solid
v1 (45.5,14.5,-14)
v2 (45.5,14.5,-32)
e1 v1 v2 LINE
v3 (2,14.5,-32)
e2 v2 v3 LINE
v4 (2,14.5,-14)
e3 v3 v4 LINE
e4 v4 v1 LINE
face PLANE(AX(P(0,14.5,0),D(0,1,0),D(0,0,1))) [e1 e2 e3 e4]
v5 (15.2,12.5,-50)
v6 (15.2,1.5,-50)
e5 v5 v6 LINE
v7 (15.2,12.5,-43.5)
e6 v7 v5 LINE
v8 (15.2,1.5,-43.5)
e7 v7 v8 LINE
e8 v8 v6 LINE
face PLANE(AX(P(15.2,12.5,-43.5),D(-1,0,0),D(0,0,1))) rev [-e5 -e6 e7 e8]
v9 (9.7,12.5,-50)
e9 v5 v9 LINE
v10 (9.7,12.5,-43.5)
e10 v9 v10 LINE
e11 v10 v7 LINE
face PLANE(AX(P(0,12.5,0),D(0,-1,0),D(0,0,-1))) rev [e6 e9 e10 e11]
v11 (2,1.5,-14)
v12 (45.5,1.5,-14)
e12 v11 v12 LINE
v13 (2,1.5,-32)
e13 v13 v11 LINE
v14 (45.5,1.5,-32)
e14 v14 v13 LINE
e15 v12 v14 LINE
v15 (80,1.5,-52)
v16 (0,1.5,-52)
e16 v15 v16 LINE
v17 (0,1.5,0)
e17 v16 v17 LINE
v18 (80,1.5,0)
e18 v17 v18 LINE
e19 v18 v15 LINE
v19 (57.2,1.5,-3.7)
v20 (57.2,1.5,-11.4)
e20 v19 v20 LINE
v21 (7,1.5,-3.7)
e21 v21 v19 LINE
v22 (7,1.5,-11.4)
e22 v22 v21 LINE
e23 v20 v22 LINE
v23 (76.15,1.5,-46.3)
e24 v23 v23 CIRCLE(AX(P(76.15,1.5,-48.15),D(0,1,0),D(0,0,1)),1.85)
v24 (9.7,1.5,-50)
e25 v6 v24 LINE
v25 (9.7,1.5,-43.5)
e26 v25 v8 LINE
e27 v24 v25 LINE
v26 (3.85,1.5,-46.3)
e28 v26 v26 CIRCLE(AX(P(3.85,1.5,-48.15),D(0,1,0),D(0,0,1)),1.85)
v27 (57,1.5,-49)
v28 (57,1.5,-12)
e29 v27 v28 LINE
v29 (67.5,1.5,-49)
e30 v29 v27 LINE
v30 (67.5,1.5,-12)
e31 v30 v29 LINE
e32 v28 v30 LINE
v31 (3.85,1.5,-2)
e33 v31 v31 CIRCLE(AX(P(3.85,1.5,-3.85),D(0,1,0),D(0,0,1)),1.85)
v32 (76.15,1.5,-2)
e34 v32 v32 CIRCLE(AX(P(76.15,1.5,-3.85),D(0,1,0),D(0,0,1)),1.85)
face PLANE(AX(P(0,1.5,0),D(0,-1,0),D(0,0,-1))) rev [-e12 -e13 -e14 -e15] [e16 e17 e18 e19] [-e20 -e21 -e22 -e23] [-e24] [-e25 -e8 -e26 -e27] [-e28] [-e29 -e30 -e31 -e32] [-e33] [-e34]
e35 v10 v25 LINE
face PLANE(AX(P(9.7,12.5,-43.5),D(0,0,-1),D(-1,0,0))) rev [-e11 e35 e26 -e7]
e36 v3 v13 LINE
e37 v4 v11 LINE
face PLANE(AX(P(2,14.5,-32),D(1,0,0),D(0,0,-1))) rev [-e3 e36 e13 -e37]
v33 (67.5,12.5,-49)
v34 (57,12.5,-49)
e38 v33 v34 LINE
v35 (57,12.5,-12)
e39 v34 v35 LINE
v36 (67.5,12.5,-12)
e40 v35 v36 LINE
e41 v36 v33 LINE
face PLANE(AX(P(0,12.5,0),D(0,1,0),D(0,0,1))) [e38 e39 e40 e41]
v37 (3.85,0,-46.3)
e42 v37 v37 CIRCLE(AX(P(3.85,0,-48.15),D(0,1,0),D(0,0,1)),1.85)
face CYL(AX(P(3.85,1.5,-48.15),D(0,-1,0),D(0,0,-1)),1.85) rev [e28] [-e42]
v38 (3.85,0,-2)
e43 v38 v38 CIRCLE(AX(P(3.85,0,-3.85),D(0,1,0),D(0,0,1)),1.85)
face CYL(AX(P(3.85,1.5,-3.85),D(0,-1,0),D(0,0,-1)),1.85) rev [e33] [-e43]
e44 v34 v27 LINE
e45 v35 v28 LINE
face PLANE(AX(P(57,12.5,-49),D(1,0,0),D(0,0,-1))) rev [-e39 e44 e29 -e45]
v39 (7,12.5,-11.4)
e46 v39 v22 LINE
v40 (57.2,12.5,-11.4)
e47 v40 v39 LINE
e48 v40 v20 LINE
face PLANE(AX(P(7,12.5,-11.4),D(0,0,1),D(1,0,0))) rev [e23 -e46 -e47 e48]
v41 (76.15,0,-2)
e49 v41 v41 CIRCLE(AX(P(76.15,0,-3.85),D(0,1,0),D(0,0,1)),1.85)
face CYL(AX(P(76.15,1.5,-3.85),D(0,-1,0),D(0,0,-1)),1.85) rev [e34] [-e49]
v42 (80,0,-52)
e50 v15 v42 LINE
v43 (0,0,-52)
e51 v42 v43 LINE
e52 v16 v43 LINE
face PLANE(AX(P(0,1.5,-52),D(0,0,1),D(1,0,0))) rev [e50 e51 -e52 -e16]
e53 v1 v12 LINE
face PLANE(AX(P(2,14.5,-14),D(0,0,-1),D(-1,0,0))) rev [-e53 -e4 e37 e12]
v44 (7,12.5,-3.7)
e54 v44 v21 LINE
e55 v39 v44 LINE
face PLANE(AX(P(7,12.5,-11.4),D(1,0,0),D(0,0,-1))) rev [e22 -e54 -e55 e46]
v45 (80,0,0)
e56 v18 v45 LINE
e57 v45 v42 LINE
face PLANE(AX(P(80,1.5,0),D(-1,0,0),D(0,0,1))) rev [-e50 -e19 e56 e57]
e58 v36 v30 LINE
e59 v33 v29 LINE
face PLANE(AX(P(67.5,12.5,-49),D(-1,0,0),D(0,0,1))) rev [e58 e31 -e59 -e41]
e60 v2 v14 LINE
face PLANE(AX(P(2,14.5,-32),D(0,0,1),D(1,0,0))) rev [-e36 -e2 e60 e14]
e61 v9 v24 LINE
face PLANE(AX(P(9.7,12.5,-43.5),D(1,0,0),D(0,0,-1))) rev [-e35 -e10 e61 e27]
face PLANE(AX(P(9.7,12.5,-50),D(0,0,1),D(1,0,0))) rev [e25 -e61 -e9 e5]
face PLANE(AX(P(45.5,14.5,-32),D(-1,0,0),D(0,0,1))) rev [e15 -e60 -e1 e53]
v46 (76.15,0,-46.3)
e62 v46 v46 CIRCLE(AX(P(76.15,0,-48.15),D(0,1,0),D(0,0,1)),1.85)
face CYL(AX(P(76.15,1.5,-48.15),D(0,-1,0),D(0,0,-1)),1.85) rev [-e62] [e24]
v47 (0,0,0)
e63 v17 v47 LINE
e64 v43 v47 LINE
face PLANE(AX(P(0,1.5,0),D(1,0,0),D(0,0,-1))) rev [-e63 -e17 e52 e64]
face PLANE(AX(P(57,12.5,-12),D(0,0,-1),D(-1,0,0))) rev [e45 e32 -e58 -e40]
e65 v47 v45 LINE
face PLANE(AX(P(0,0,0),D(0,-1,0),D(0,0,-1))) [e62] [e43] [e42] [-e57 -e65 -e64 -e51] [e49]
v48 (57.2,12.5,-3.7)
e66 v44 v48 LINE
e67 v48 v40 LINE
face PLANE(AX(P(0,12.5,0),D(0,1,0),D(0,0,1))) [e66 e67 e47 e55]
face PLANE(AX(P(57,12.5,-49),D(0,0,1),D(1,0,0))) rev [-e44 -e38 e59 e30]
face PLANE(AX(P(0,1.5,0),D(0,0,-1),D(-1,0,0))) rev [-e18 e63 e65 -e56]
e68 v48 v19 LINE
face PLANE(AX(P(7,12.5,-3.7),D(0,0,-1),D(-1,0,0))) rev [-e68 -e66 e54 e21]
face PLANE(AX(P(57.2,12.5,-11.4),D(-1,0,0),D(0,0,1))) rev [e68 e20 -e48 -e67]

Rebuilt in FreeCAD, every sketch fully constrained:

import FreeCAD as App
import Part
import Sketcher

doc = App.newDocument("Part")
params = doc.addObject("Spreadsheet::Sheet", "Params")
for row, (alias, value) in enumerate([
    ("sketch1_diameter", "3.7 mm"),
    ("sketch1_width", "80 mm"),
    ("sketch1_height", "52 mm"),
    ("pad1_length", "1.5 mm"),
    ("sketch2_height", "18 mm"),
    ("sketch2_width", "43.5 mm"),
    ("pad2_length", "13 mm"),
    ("sketch3_height", "37 mm"),
    ("sketch3_width", "10.5 mm"),
    ("sketch3_width2", "50.2 mm"),
    ("sketch3_width3", "5.5 mm"),
    ("sketch3_height2", "7.7 mm"),
    ("pad3_length", "11 mm"),
], start=1):
    params.set(f"A{row}", alias)
    params.set(f"B{row}", "=" + value)
    params.setAlias(f"B{row}", alias)

body = doc.addObject("PartDesign::Body", "Body")

# Sketch on XZ plane
sketch1 = doc.addObject("Sketcher::SketchObject", "Sketch")
body.addObject(sketch1)
sketch1.AttachmentSupport = (doc.XZ_Plane, [""])
sketch1.MapMode = "FlatFace"
sketch1.addGeometry([
    Part.LineSegment(App.Vector(0, -52, 0), App.Vector(0, 0, 0)),  # 0
    Part.LineSegment(App.Vector(0, 0, 0), App.Vector(80, 0, 0)),  # 1
    Part.LineSegment(App.Vector(80, 0, 0), App.Vector(80, -52, 0)),  # 2
    Part.LineSegment(App.Vector(80, -52, 0), App.Vector(0, -52, 0)),  # 3
    Part.Circle(App.Vector(3.9, -3.9, 0), App.Vector(0, 0, 1), 1.9),  # 4
    Part.Circle(App.Vector(76.2, -3.9, 0), App.Vector(0, 0, 1), 1.9),  # 5
    Part.Circle(App.Vector(3.9, -48.1, 0), App.Vector(0, 0, 1), 1.9),  # 6
    Part.Circle(App.Vector(76.2, -48.1, 0), App.Vector(0, 0, 1), 1.9),  # 7
], False)
sketch1.addConstraint([
    Sketcher.Constraint("Coincident", 0, 2, 1, 1),
    Sketcher.Constraint("Coincident", 1, 2, 2, 1),
    Sketcher.Constraint("Coincident", 2, 2, 3, 1),
    Sketcher.Constraint("Coincident", 3, 2, 0, 1),
    Sketcher.Constraint("Vertical", 0),
    Sketcher.Constraint("Horizontal", 1),
    Sketcher.Constraint("Vertical", 2),
    Sketcher.Constraint("Horizontal", 3),
    Sketcher.Constraint("Coincident", 0, 2, -1, 1),
    Sketcher.Constraint("Equal", 4, 5),
    Sketcher.Constraint("Equal", 5, 6),
    Sketcher.Constraint("Equal", 6, 7),
    Sketcher.Constraint("Horizontal", 4, 3, 5, 3),
    Sketcher.Constraint("Horizontal", 6, 3, 7, 3),
    Sketcher.Constraint("Vertical", 4, 3, 6, 3),
    Sketcher.Constraint("Vertical", 5, 3, 7, 3),
    Sketcher.Constraint("Diameter", 4, 3.7),
    Sketcher.Constraint("DistanceX", 1, 1, 1, 2, 80.0),
    Sketcher.Constraint("DistanceY", 0, 1, 0, 2, 52.0),
    Sketcher.Constraint("DistanceX", 4, 3, 5, 3, 72.3),
    Sketcher.Constraint("DistanceY", 6, 3, 4, 3, 44.3),
    Sketcher.Constraint("DistanceX", -1, 1, 4, 3, 3.85),
    Sketcher.Constraint("DistanceY", 4, 3, -1, 1, 3.85),
])
sketch1.setExpression("Constraints[16]", "Params.sketch1_diameter")
sketch1.setExpression("Constraints[17]", "Params.sketch1_width")
sketch1.setExpression("Constraints[18]", "Params.sketch1_height")
pad1 = doc.addObject("PartDesign::Pad", "Pad")
body.addObject(pad1)
pad1.Profile = sketch1
pad1.setExpression("Length", "Params.pad1_length")
pad1.Reversed = True

# Sketch on XZ plane
sketch2 = doc.addObject("Sketcher::SketchObject", "Sketch001")
body.addObject(sketch2)
sketch2.AttachmentSupport = (doc.XZ_Plane, [""])
sketch2.MapMode = "FlatFace"
sketch2.AttachmentOffset = App.Placement(App.Vector(0, 0, -1.5), App.Rotation())
sketch2.addGeometry([
    Part.LineSegment(App.Vector(2, -32, 0), App.Vector(2, -14, 0)),
    Part.LineSegment(App.Vector(2, -14, 0), App.Vector(46, -14, 0)),
    Part.LineSegment(App.Vector(46, -14, 0), App.Vector(46, -32, 0)),
    Part.LineSegment(App.Vector(46, -32, 0), App.Vector(2, -32, 0)),
], False)
sketch2.addConstraint([
    Sketcher.Constraint("Coincident", 0, 2, 1, 1),
    Sketcher.Constraint("Coincident", 1, 2, 2, 1),
    Sketcher.Constraint("Coincident", 2, 2, 3, 1),
    Sketcher.Constraint("Coincident", 3, 2, 0, 1),
    Sketcher.Constraint("Vertical", 0),
    Sketcher.Constraint("Horizontal", 1),
    Sketcher.Constraint("Vertical", 2),
    Sketcher.Constraint("Horizontal", 3),
    Sketcher.Constraint("DistanceY", 0, 1, 0, 2, 18.0),
    Sketcher.Constraint("DistanceX", 1, 1, 1, 2, 43.5),
    Sketcher.Constraint("DistanceX", -1, 1, 0, 2, 2.0),
    Sketcher.Constraint("DistanceY", 0, 2, -1, 1, 14.0),
])
sketch2.setExpression("Constraints[8]", "Params.sketch2_height")
sketch2.setExpression("Constraints[9]", "Params.sketch2_width")
pad2 = doc.addObject("PartDesign::Pad", "Pad001")
body.addObject(pad2)
pad2.Profile = sketch2
pad2.setExpression("Length", "Params.pad2_length")
pad2.Reversed = True

# Sketch on XZ plane
sketch3 = doc.addObject("Sketcher::SketchObject", "Sketch002")
body.addObject(sketch3)
sketch3.AttachmentSupport = (doc.XZ_Plane, [""])
sketch3.MapMode = "FlatFace"
sketch3.AttachmentOffset = App.Placement(App.Vector(0, 0, -1.5), App.Rotation())
sketch3.addGeometry([
    Part.LineSegment(App.Vector(57, -49, 0), App.Vector(57, -12, 0)),  # 0
    Part.LineSegment(App.Vector(57, -12, 0), App.Vector(68, -12, 0)),  # 1
    Part.LineSegment(App.Vector(68, -12, 0), App.Vector(68, -49, 0)),  # 2
    Part.LineSegment(App.Vector(68, -49, 0), App.Vector(57, -49, 0)),  # 3
    Part.LineSegment(App.Vector(7, -11, 0), App.Vector(7, -4, 0)),  # 4
    Part.LineSegment(App.Vector(7, -4, 0), App.Vector(57, -4, 0)),  # 5
    Part.LineSegment(App.Vector(57, -4, 0), App.Vector(57, -11, 0)),  # 6
    Part.LineSegment(App.Vector(57, -11, 0), App.Vector(7, -11, 0)),  # 7
    Part.LineSegment(App.Vector(10, -50, 0), App.Vector(10, -44, 0)),  # 8
    Part.LineSegment(App.Vector(10, -44, 0), App.Vector(15, -44, 0)),  # 9
    Part.LineSegment(App.Vector(15, -44, 0), App.Vector(15, -50, 0)),  # 10
    Part.LineSegment(App.Vector(15, -50, 0), App.Vector(10, -50, 0)),  # 11
], False)
sketch3.addConstraint([
    Sketcher.Constraint("Coincident", 0, 2, 1, 1),
    Sketcher.Constraint("Coincident", 1, 2, 2, 1),
    Sketcher.Constraint("Coincident", 2, 2, 3, 1),
    Sketcher.Constraint("Coincident", 3, 2, 0, 1),
    Sketcher.Constraint("Coincident", 4, 2, 5, 1),
    Sketcher.Constraint("Coincident", 5, 2, 6, 1),
    Sketcher.Constraint("Coincident", 6, 2, 7, 1),
    Sketcher.Constraint("Coincident", 7, 2, 4, 1),
    Sketcher.Constraint("Coincident", 8, 2, 9, 1),
    Sketcher.Constraint("Coincident", 9, 2, 10, 1),
    Sketcher.Constraint("Coincident", 10, 2, 11, 1),
    Sketcher.Constraint("Coincident", 11, 2, 8, 1),
    Sketcher.Constraint("Vertical", 0),
    Sketcher.Constraint("Horizontal", 1),
    Sketcher.Constraint("Vertical", 2),
    Sketcher.Constraint("Horizontal", 3),
    Sketcher.Constraint("Vertical", 4),
    Sketcher.Constraint("Horizontal", 5),
    Sketcher.Constraint("Vertical", 6),
    Sketcher.Constraint("Horizontal", 7),
    Sketcher.Constraint("Vertical", 8),
    Sketcher.Constraint("Horizontal", 9),
    Sketcher.Constraint("Vertical", 10),
    Sketcher.Constraint("Horizontal", 11),
    Sketcher.Constraint("DistanceY", 0, 1, 0, 2, 37.0),
    Sketcher.Constraint("DistanceX", 1, 1, 1, 2, 10.5),
    Sketcher.Constraint("DistanceX", 5, 1, 5, 2, 50.2),
    Sketcher.Constraint("DistanceX", 9, 1, 9, 2, 5.5),
    Sketcher.Constraint("DistanceY", 4, 1, 4, 2, 7.7),
    Sketcher.Constraint("DistanceY", 8, 1, 8, 2, 6.5),
    Sketcher.Constraint("DistanceX", -1, 1, 0, 2, 57.0),
    Sketcher.Constraint("DistanceY", 0, 2, -1, 1, 12.0),
    Sketcher.Constraint("DistanceX", -1, 1, 4, 2, 7.0),
    Sketcher.Constraint("DistanceY", 10, 2, -1, 1, 50.0),
    Sketcher.Constraint("DistanceY", 4, 2, -1, 1, 3.7),
    Sketcher.Constraint("DistanceX", -1, 1, 8, 2, 9.7),
])
sketch3.setExpression("Constraints[24]", "Params.sketch3_height")
sketch3.setExpression("Constraints[25]", "Params.sketch3_width")
sketch3.setExpression("Constraints[26]", "Params.sketch3_width2")
sketch3.setExpression("Constraints[27]", "Params.sketch3_width3")
sketch3.setExpression("Constraints[28]", "Params.sketch3_height2")
pad3 = doc.addObject("PartDesign::Pad", "Pad002")
body.addObject(pad3)
pad3.Profile = sketch3
pad3.setExpression("Length", "Params.pad3_length")
pad3.Reversed = True

doc.recompute()
